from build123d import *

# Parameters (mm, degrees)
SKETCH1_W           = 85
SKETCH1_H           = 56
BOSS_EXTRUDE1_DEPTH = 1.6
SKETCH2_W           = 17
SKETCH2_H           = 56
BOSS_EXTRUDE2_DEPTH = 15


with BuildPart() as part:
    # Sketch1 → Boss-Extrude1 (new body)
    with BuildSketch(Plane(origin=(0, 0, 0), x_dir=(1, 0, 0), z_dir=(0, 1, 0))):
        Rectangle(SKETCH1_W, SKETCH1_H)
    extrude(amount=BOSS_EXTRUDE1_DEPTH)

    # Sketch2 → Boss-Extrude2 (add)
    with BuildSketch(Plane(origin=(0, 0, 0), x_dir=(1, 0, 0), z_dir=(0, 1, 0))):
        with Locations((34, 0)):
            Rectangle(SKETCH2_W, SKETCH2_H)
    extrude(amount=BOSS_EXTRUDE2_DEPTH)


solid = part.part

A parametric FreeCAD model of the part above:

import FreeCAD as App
import Part
import Sketcher
from FreeCAD import Vector
Q = App.Units.Quantity


def add_polygon(sketch, points):
    """Adds a closed chain of lines whose ends are joined by coincident constraints."""
    first, n = sketch.GeometryCount, len(points)
    for a, b in zip(points, points[1:] + points[:1]):
        sketch.addGeometry(Part.LineSegment(App.Vector(*a, 0), App.Vector(*b, 0)), False)
    for i in range(n):
        sketch.addConstraint(Sketcher.Constraint("Coincident", first + i, 2, first + (i + 1) % n, 1))

doc = App.newDocument("Part")
body = doc.addObject("PartDesign::Body", "Body")

sketch1 = body.newObject("Sketcher::SketchObject", "Sketch")
sketch1.AttachmentSupport = (doc.getObject("XZ_Plane"), [""])
sketch1.MapMode = "FlatFace"
add_polygon(sketch1, [(-42, -28), (-42, 28), (42, 28), (42, -28)])
sketch1.addConstraint([
    Sketcher.Constraint("Vertical", 0),
    Sketcher.Constraint("Horizontal", 1),
    Sketcher.Constraint("Vertical", 2),
    Sketcher.Constraint("Horizontal", 3),
    Sketcher.Constraint("Symmetric", 0, 2, 2, 2, -1, 1),
    Sketcher.Constraint("DistanceX", 1, 1, 1, 2, Q("85 mm")),
    Sketcher.Constraint("DistanceY", 0, 1, 0, 2, Q("56 mm")),
])
pad1 = body.newObject("PartDesign::Pad", "Pad")
pad1.Profile = sketch1
pad1.Length = 1.6
pad1.Reversed = True

sketch2 = body.newObject("Sketcher::SketchObject", "Sketch001")
sketch2.AttachmentSupport = (doc.getObject("XZ_Plane"), [""])
sketch2.MapMode = "FlatFace"
add_polygon(sketch2, [(26, -28), (26, 28), (42, 28), (42, -28)])
sketch2.addConstraint([
    Sketcher.Constraint("Vertical", 0),
    Sketcher.Constraint("Horizontal", 1),
    Sketcher.Constraint("Vertical", 2),
    Sketcher.Constraint("Horizontal", 3),
    Sketcher.Constraint("DistanceX", 1, 1, 1, 2, Q("17 mm")),
    Sketcher.Constraint("DistanceY", 0, 1, 0, 2, Q("56 mm")),
    Sketcher.Constraint("DistanceY", -1, 1, 0, 2, Q("28 mm")),
    Sketcher.Constraint("DistanceX", -1, 1, 0, 2, Q("25.5 mm")),
])
pad2 = body.newObject("PartDesign::Pad", "Pad001")
pad2.Profile = sketch2
pad2.Length = 15
pad2.Reversed = True

doc.recompute()
